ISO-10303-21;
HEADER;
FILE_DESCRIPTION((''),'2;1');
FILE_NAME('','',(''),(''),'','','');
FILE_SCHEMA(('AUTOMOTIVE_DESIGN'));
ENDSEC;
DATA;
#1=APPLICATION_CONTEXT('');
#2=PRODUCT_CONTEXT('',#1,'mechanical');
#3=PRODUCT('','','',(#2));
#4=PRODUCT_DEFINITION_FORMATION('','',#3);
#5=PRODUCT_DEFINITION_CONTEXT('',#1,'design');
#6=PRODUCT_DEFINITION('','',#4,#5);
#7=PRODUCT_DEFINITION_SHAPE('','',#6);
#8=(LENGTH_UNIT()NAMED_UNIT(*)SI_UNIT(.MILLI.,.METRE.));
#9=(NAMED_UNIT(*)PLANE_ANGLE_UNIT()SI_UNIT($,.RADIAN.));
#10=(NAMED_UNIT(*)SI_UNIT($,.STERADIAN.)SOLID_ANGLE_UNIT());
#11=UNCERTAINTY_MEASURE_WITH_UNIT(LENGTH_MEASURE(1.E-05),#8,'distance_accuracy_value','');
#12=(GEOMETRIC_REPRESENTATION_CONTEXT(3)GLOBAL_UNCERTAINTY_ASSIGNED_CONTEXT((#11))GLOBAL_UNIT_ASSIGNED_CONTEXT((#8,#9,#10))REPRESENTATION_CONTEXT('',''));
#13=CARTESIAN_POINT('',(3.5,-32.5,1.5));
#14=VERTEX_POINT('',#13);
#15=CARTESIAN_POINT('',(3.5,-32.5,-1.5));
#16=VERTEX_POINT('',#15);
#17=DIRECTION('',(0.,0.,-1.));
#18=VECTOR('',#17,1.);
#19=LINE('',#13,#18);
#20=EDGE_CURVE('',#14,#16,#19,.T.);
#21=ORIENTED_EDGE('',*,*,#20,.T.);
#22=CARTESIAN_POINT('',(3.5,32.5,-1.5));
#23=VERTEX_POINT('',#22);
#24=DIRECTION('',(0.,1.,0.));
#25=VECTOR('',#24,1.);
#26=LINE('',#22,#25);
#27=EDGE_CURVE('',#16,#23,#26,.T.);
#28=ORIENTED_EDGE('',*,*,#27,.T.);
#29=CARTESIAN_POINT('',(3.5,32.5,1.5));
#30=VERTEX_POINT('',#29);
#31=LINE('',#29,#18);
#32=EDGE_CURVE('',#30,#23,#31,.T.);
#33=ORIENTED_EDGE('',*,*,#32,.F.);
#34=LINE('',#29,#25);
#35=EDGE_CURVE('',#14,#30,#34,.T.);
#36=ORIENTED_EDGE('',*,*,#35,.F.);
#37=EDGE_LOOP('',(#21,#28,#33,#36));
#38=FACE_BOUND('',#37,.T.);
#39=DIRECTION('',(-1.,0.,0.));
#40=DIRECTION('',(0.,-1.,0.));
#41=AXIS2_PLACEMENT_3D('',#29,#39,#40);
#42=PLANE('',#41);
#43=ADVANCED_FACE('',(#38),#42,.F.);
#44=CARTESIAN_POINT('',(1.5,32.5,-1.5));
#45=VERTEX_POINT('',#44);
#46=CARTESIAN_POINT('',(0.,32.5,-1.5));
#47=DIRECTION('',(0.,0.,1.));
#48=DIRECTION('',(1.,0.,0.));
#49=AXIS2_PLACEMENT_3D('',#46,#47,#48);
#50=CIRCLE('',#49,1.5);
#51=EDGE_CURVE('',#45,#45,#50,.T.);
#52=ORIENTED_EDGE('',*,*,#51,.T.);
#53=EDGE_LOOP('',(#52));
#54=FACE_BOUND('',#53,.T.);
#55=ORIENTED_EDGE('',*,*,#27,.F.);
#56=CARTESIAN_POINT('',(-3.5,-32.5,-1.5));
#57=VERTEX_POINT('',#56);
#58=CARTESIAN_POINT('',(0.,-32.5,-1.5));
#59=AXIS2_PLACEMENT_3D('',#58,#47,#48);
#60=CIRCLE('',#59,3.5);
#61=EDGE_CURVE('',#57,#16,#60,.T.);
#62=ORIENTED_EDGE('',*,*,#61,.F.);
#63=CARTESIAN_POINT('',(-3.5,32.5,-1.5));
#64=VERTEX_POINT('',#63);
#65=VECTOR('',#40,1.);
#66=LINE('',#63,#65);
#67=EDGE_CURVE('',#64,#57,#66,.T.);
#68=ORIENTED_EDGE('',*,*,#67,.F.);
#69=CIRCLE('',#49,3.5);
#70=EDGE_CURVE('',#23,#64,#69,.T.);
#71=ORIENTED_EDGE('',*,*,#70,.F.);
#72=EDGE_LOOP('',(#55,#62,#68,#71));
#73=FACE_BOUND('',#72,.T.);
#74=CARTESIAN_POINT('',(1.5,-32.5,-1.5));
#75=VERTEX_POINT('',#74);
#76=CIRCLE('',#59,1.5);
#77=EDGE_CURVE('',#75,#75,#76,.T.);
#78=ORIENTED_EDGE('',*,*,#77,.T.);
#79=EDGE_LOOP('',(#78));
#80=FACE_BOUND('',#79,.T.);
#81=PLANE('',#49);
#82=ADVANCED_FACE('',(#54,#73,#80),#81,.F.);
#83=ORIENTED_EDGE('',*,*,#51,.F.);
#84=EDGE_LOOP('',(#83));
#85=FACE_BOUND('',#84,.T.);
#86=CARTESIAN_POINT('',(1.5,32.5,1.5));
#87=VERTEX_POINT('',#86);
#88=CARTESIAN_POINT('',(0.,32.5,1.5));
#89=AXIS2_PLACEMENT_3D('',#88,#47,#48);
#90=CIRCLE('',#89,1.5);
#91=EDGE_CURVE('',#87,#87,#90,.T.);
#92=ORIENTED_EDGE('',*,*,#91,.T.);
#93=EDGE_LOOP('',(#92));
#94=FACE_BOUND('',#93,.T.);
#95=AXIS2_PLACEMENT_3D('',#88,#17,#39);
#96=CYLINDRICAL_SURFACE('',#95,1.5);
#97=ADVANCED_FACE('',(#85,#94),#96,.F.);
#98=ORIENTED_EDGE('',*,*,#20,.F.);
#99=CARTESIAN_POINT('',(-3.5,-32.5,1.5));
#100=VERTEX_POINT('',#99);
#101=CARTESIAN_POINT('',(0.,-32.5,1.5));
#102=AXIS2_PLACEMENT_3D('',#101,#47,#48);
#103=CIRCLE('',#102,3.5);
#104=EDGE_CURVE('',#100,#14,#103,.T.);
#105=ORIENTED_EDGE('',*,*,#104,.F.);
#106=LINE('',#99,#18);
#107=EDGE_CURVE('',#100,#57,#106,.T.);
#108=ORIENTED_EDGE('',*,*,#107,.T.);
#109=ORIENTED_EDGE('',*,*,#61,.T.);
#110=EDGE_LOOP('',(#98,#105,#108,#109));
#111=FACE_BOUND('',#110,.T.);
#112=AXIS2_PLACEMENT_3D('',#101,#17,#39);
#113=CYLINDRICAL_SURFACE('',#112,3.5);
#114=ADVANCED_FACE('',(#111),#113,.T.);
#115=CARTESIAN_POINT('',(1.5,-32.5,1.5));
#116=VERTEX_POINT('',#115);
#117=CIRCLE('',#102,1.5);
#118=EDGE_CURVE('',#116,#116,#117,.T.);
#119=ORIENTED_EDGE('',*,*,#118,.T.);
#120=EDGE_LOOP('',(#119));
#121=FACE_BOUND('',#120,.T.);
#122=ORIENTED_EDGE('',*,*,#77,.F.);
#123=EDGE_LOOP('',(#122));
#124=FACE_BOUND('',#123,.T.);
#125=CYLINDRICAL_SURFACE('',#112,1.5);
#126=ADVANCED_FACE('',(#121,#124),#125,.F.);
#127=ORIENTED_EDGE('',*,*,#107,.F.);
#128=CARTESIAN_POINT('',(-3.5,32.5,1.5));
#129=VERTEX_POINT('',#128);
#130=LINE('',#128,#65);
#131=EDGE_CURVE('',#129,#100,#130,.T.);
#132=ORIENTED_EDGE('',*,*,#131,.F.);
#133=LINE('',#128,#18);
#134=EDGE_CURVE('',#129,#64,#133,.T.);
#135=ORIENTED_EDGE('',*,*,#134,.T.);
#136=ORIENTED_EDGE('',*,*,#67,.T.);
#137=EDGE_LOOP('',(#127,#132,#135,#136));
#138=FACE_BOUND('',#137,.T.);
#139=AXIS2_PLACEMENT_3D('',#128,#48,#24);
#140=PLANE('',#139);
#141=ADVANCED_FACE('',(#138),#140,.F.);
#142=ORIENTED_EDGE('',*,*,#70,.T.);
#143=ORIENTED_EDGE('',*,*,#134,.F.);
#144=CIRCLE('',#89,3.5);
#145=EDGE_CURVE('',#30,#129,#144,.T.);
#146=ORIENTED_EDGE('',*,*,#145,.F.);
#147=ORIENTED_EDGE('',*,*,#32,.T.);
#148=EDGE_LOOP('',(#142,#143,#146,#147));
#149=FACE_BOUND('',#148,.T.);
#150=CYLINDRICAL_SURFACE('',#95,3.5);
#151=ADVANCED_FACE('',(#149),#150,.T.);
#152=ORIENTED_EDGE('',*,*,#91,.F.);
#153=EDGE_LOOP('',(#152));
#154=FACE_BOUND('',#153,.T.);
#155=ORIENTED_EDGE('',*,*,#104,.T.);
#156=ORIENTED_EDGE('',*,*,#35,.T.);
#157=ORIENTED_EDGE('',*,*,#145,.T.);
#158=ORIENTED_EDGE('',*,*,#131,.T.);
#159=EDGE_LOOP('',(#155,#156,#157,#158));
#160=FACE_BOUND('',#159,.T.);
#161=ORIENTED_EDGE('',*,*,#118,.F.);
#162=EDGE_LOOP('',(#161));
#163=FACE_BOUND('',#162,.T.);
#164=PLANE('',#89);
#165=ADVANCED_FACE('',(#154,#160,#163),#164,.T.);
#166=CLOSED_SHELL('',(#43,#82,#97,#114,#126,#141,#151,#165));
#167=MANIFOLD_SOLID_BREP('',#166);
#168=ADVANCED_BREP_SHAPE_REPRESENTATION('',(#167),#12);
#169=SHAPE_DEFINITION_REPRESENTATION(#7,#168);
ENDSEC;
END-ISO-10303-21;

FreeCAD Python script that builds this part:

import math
import FreeCAD as App
import Part
import Sketcher
from FreeCAD import Vector

doc = App.newDocument("Part")
body = doc.addObject("PartDesign::Body", "Body")

# Sketch on XY plane
sketch1 = body.newObject("Sketcher::SketchObject", "Sketch")
sketch1.AttachmentSupport = (doc.getObject("XY_Plane"), [""])
sketch1.MapMode = "FlatFace"
sketch1.addGeometry(Part.LineSegment(Vector(3.5, -32.5, 0), Vector(3.5, 32.5, 0)), False)
sketch1.addGeometry(Part.ArcOfCircle(Part.Circle(Vector(0, 32.5, 0), Vector(0, 0, 1), 3.5), math.radians(0), math.radians(180)), False)
sketch1.addGeometry(Part.LineSegment(Vector(-3.5, 32.5, 0), Vector(-3.5, -32.5, 0)), False)
sketch1.addGeometry(Part.ArcOfCircle(Part.Circle(Vector(0, -32.5, 0), Vector(0, 0, 1), 3.5), math.radians(180), math.radians(360)), False)
sketch1.addGeometry(Part.Circle(Vector(0, -32.5, 0), Vector(0, 0, 1), 1.5), False)
sketch1.addGeometry(Part.Circle(Vector(0, 32.5, 0), Vector(0, 0, 1), 1.5), False)
sketch1.addConstraint(Sketcher.Constraint("Tangent", 0, 2, 1, 1))
sketch1.addConstraint(Sketcher.Constraint("Tangent", 1, 2, 2, 1))
sketch1.addConstraint(Sketcher.Constraint("Tangent", 2, 2, 3, 1))
sketch1.addConstraint(Sketcher.Constraint("Tangent", 3, 2, 0, 1))
sketch1.addConstraint(Sketcher.Constraint("Vertical", 0))
sketch1.addConstraint(Sketcher.Constraint("Vertical", 2))
sketch1.addConstraint(Sketcher.Constraint("Coincident", 4, 3, 3, 3))
sketch1.addConstraint(Sketcher.Constraint("Coincident", 5, 3, 1, 3))
sketch1.addConstraint(Sketcher.Constraint("Equal", 4, 5))
sketch1.addConstraint(Sketcher.Constraint("Symmetric", 1, 3, 3, 3, -1, 1))
sketch1.addConstraint(Sketcher.Constraint("Diameter", 4, 3.0))
sketch1.addConstraint(Sketcher.Constraint("Radius", 1, 3.5))
sketch1.addConstraint(Sketcher.Constraint("DistanceY", 0, 1, 0, 2, 65.0))
pad1 = body.newObject("PartDesign::Pad", "Pad")
pad1.Profile = sketch1
pad1.Length = 3
pad1.Midplane = True

doc.recompute()
